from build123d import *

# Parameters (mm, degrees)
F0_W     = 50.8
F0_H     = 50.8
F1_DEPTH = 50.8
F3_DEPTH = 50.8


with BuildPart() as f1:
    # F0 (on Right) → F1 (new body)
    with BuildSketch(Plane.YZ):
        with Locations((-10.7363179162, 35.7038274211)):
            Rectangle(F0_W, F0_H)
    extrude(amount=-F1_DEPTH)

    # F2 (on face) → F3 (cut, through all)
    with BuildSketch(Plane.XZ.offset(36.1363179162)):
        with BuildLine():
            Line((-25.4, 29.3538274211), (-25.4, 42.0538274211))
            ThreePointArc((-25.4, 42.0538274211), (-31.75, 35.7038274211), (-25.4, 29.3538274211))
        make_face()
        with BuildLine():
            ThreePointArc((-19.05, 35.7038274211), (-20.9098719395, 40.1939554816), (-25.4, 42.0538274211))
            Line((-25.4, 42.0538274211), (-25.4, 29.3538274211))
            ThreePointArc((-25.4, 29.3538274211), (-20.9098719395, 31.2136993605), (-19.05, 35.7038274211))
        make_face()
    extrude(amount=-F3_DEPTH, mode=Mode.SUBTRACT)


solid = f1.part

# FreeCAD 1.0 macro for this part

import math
import FreeCAD as App
import Part
import Sketcher

V = App.Vector
Q = App.Units.Quantity


def add_polygon(sketch, points):
    """Adds a closed chain of lines whose ends are joined by coincident constraints."""
    first, n = sketch.GeometryCount, len(points)
    for a, b in zip(points, points[1:] + points[:1]):
        sketch.addGeometry(Part.LineSegment(App.Vector(*a, 0), App.Vector(*b, 0)), False)
    for i in range(n):
        sketch.addConstraint(Sketcher.Constraint("Coincident", first + i, 2, first + (i + 1) % n, 1))

doc = App.newDocument("Part")
body = doc.addObject("PartDesign::Body", "Body")

# Sketch on YZ plane
sketch1 = body.newObject("Sketcher::SketchObject", "Sketch")
sketch1.AttachmentSupport = (doc.getObject("YZ_Plane"), [""])
sketch1.MapMode = "FlatFace"
add_polygon(sketch1, [(-36.136318, 61.103827), (-36.136318, 10.303827), (14.663682, 10.303827), (14.663682, 61.103827)])  # lines 0-3
sketch1.addConstraint(Sketcher.Constraint("Vertical", 0))
sketch1.addConstraint(Sketcher.Constraint("Horizontal", 1))
sketch1.addConstraint(Sketcher.Constraint("Vertical", 2))
sketch1.addConstraint(Sketcher.Constraint("Horizontal", 3))
sketch1.addConstraint(Sketcher.Constraint("Equal", 3, 0))
sketch1.addConstraint(Sketcher.Constraint("DistanceX", 1, 1, 1, 2, Q("2 in")))
sketch1.addConstraint(Sketcher.Constraint("DistanceX", 0, 2, -1, 1, 36.136318))
sketch1.addConstraint(Sketcher.Constraint("DistanceY", -1, 1, 0, 2, 10.303827))
pad1 = body.newObject("PartDesign::Pad", "Pad")
pad1.Profile = sketch1
pad1.Length = Q("2 in")
pad1.Reversed = True

# Sketch on XZ plane
sketch2 = body.newObject("Sketcher::SketchObject", "Sketch001")
sketch2.AttachmentSupport = (doc.getObject("XZ_Plane"), [""])
sketch2.MapMode = "FlatFace"
sketch2.AttachmentOffset = App.Placement(V(0, 0, 36.136318), App.Rotation())
sketch2.addGeometry(Part.ArcOfCircle(Part.Circle(V(-25.4, 35.703827, 0), V(0, 0, 1), 6.35), math.radians(90), math.radians(270)), False)
sketch2.addGeometry(Part.ArcOfCircle(Part.Circle(V(-25.4, 35.703827, 0), V(0, 0, 1), 6.35), math.radians(-90), math.radians(0)), False)
sketch2.addGeometry(Part.ArcOfCircle(Part.Circle(V(-25.4, 35.703827, 0), V(0, 0, 1), 6.35), math.radians(0), math.radians(90)), False)
sketch2.addConstraint(Sketcher.Constraint("Tangent", 0, 2, 1, 1))
sketch2.addConstraint(Sketcher.Constraint("Tangent", 1, 2, 2, 1))
sketch2.addConstraint(Sketcher.Constraint("Tangent", 2, 2, 0, 1))
sketch2.addConstraint(Sketcher.Constraint("Horizontal", 2, 3, 1, 2))
sketch2.addConstraint(Sketcher.Constraint("Vertical", 2, 3, 0, 2))
sketch2.addConstraint(Sketcher.Constraint("Vertical", 0, 2, 2, 2))
sketch2.addConstraint(Sketcher.Constraint("Radius", 0, Q("0.25 in")))
sketch2.addConstraint(Sketcher.Constraint("DistanceX", 0, 3, -1, 1, Q("1 in")))
sketch2.addConstraint(Sketcher.Constraint("DistanceY", -1, 1, 0, 3, 35.703827))
pocket1 = body.newObject("PartDesign::Pocket", "Pocket")
pocket1.Profile = sketch2
pocket1.Type = "ThroughAll"

doc.recompute()
